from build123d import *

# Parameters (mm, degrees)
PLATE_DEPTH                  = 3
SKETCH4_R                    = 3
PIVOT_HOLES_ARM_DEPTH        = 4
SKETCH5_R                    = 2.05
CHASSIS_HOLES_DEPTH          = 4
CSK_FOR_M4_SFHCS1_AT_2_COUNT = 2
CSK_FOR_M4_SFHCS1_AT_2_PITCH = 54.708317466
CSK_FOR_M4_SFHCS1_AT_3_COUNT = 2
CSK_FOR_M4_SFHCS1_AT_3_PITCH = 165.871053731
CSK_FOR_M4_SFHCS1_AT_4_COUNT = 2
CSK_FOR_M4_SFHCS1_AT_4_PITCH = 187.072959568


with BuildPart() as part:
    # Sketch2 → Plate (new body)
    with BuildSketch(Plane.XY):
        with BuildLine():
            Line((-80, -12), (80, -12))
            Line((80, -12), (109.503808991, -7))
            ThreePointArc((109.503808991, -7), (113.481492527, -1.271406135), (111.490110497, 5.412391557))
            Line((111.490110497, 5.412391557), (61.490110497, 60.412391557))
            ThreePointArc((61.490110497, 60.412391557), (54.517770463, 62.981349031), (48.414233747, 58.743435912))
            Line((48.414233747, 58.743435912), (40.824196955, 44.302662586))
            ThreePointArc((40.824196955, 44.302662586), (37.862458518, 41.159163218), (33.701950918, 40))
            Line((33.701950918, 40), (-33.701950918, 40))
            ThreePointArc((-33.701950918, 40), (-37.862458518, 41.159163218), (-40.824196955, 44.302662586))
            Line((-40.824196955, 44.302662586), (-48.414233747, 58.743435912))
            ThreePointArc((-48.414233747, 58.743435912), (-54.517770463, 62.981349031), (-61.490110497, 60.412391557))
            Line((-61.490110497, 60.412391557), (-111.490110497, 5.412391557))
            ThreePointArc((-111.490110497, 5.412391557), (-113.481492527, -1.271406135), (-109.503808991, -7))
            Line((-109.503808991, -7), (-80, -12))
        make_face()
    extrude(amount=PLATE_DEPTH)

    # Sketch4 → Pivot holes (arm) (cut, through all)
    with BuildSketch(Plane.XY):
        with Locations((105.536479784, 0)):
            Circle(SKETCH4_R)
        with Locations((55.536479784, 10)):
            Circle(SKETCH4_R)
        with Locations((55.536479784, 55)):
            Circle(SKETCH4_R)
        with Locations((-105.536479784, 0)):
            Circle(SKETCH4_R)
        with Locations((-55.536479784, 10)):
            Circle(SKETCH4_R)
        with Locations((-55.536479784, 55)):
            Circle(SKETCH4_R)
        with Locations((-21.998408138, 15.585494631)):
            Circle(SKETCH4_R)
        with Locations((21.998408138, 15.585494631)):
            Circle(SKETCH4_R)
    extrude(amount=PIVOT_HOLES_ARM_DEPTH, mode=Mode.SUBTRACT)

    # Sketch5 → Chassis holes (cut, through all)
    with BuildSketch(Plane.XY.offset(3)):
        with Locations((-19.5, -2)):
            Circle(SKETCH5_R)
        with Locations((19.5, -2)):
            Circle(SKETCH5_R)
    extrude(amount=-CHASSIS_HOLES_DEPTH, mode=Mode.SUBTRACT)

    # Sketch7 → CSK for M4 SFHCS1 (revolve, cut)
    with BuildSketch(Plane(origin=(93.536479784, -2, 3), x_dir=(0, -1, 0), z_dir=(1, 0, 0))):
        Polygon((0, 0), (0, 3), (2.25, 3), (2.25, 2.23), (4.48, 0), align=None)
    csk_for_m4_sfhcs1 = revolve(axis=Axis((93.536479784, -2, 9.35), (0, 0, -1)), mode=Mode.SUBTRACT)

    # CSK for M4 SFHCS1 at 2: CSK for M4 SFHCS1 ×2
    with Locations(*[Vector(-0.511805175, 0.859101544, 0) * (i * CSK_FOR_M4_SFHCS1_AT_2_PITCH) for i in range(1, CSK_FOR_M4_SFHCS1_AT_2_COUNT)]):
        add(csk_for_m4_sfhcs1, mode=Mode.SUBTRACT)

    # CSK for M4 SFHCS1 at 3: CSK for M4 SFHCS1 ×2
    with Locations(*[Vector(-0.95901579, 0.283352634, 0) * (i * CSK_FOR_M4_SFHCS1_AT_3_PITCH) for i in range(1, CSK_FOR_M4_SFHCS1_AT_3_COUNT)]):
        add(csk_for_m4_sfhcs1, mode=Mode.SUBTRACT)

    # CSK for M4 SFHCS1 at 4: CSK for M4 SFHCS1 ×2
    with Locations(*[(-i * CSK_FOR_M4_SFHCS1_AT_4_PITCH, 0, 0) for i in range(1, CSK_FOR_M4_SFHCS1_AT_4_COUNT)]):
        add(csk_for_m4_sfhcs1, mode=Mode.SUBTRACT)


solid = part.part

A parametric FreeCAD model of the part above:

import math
import FreeCAD as App
import Part
import Sketcher
Q = App.Units.Quantity


def add_polygon(sketch, points):
    """Adds a closed chain of lines whose ends are joined by coincident constraints."""
    first, n = sketch.GeometryCount, len(points)
    for a, b in zip(points, points[1:] + points[:1]):
        sketch.addGeometry(Part.LineSegment(App.Vector(*a, 0), App.Vector(*b, 0)), False)
    for i in range(n):
        sketch.addConstraint(Sketcher.Constraint("Coincident", first + i, 2, first + (i + 1) % n, 1))

doc = App.newDocument("Part")
body = doc.addObject("PartDesign::Body", "Body")

sketch1 = doc.addObject("Sketcher::SketchObject", "Sketch")
body.addObject(sketch1)
sketch1.AttachmentSupport = (doc.XY_Plane, [""])
sketch1.MapMode = "FlatFace"
sketch1.addGeometry([
    Part.LineSegment(App.Vector(-80, -12, 0), App.Vector(80, -12, 0)),
    Part.LineSegment(App.Vector(80, -12, 0), App.Vector(110, -7, 0)),
    Part.ArcOfCircle(Part.Circle(App.Vector(106, 0, 0), App.Vector(0, 0, 1), 8), math.radians(-60), math.radians(42)),
    Part.LineSegment(App.Vector(111, 5, 0), App.Vector(61, 60, 0)),
    Part.ArcOfCircle(Part.Circle(App.Vector(56, 55, 0), App.Vector(0, 0, 1), 8), math.radians(42), math.radians(152)),
    Part.LineSegment(App.Vector(48, 59, 0), App.Vector(41, 44, 0)),
    Part.ArcOfCircle(Part.Circle(App.Vector(34, 48, 0), App.Vector(0, 0, 1), 8), math.radians(-90), math.radians(-28)),
    Part.LineSegment(App.Vector(34, 40, 0), App.Vector(-34, 40, 0)),
    Part.ArcOfCircle(Part.Circle(App.Vector(-34, 48, 0), App.Vector(0, 0, 1), 8), math.radians(-152), math.radians(-90)),
    Part.LineSegment(App.Vector(-41, 44, 0), App.Vector(-48, 59, 0)),
    Part.ArcOfCircle(Part.Circle(App.Vector(-56, 55, 0), App.Vector(0, 0, 1), 8), math.radians(28), math.radians(138)),
    Part.LineSegment(App.Vector(-61, 60, 0), App.Vector(-111, 5, 0)),
    Part.ArcOfCircle(Part.Circle(App.Vector(-106, 0, 0), App.Vector(0, 0, 1), 8), math.radians(138), math.radians(240)),
    Part.LineSegment(App.Vector(-110, -7, 0), App.Vector(-80, -12, 0)),
], False)
sketch1.addConstraint([
    Sketcher.Constraint("Coincident", 0, 2, 1, 1),
    Sketcher.Constraint("Coincident", 1, 2, 2, 1),
    Sketcher.Constraint("Tangent", 2, 2, 3, 1),
    Sketcher.Constraint("Tangent", 3, 2, 4, 1),
    Sketcher.Constraint("Tangent", 4, 2, 5, 1),
    Sketcher.Constraint("Tangent", 5, 2, 6, 2),
    Sketcher.Constraint("Tangent", 6, 1, 7, 1),
    Sketcher.Constraint("Tangent", 7, 2, 8, 2),
    Sketcher.Constraint("Tangent", 8, 1, 9, 1),
    Sketcher.Constraint("Tangent", 9, 2, 10, 1),
    Sketcher.Constraint("Tangent", 10, 2, 11, 1),
    Sketcher.Constraint("Tangent", 11, 2, 12, 1),
    Sketcher.Constraint("Coincident", 12, 2, 13, 1),
    Sketcher.Constraint("Coincident", 13, 2, 0, 1),
    Sketcher.Constraint("Horizontal", 0),
    Sketcher.Constraint("Horizontal", 7),
    Sketcher.Constraint("Equal", 2, 4),
    Sketcher.Constraint("Equal", 4, 6),
    Sketcher.Constraint("Equal", 6, 8),
    Sketcher.Constraint("Equal", 8, 10),
    Sketcher.Constraint("Equal", 10, 12),
    Sketcher.Constraint("Symmetric", 2, 3, 12, 3, -1, 1),
    Sketcher.Constraint("Symmetric", 4, 3, 10, 3, -2),
    Sketcher.Constraint("Symmetric", 1, 2, 12, 2, -2),
    Sketcher.Constraint("Horizontal", 5, 2, 8, 1),
    Sketcher.Constraint("Equal", 1, 13),
    Sketcher.Constraint("DistanceX", 0, 1, 0, 2, Q("160 mm")),
    Sketcher.Constraint("DistanceY", -1, 1, 4, 3, Q("55 mm")),
    Sketcher.Constraint("DistanceY", 0, 2, -1, 1, Q("12 mm")),
    Sketcher.Constraint("DistanceY", 1, 2, -1, 1, Q("7 mm")),
    Sketcher.Constraint("DistanceY", -1, 1, 6, 1, Q("40 mm")),
    Sketcher.Constraint("DistanceX", 4, 3, 2, 3, Q("50 mm")),
    Sketcher.Constraint("Radius", 2, Q("8.046098 mm")),
    Sketcher.Constraint("DistanceX", 7, 2, 7, 1, Q("67.403902 mm")),
    Sketcher.Constraint("Distance", 5, Q("16.313939 mm")),
])
pad1 = doc.addObject("PartDesign::Pad", "Pad")
body.addObject(pad1)
pad1.Profile = sketch1
pad1.Length = 3

sketch2 = doc.addObject("Sketcher::SketchObject", "Sketch001")
body.addObject(sketch2)
sketch2.AttachmentSupport = (doc.XY_Plane, [""])
sketch2.MapMode = "FlatFace"
sketch2.addGeometry([
    Part.Circle(App.Vector(105.5, 0, 0), App.Vector(0, 0, 1), 3),
    Part.Circle(App.Vector(55.5, 10, 0), App.Vector(0, 0, 1), 3),
    Part.Circle(App.Vector(55.5, 55, 0), App.Vector(0, 0, 1), 3),
    Part.Circle(App.Vector(-105.5, 0, 0), App.Vector(0, 0, 1), 3),
    Part.Circle(App.Vector(-55.5, 10, 0), App.Vector(0, 0, 1), 3),
    Part.Circle(App.Vector(-55.5, 55, 0), App.Vector(0, 0, 1), 3),
    Part.Circle(App.Vector(-22, 15.6, 0), App.Vector(0, 0, 1), 3),
    Part.Circle(App.Vector(22, 15.6, 0), App.Vector(0, 0, 1), 3),
], False)
sketch2.addConstraint([
    Sketcher.Constraint("Equal", 0, 1),
    Sketcher.Constraint("Equal", 1, 2),
    Sketcher.Constraint("Equal", 2, 3),
    Sketcher.Constraint("Equal", 3, 4),
    Sketcher.Constraint("Equal", 4, 5),
    Sketcher.Constraint("Equal", 5, 6),
    Sketcher.Constraint("Equal", 6, 7),
    Sketcher.Constraint("Symmetric", 0, 3, 3, 3, -1, 1),
    Sketcher.Constraint("Symmetric", 1, 3, 4, 3, -2),
    Sketcher.Constraint("Symmetric", 2, 3, 5, 3, -2),
    Sketcher.Constraint("Symmetric", 6, 3, 7, 3, -2),
    Sketcher.Constraint("PointOnObject", 0, 3, -1),
    Sketcher.Constraint("Vertical", 1, 3, 2, 3),
    Sketcher.Constraint("Diameter", 0, Q("6 mm")),
    Sketcher.Constraint("DistanceY", -1, 1, 1, 3, Q("10 mm")),
    Sketcher.Constraint("DistanceY", -1, 1, 2, 3, Q("55 mm")),
    Sketcher.Constraint("DistanceX", 1, 3, 0, 3, Q("50 mm")),
    Sketcher.Constraint("DistanceX", -1, 1, 0, 3, Q("105.53648 mm")),
    Sketcher.Constraint("DistanceX", 6, 3, -1, 1, Q("21.998408 mm")),
    Sketcher.Constraint("DistanceY", -1, 1, 6, 3, Q("15.585495 mm")),
])
pocket1 = doc.addObject("PartDesign::Pocket", "Pocket")
body.addObject(pocket1)
pocket1.Profile = sketch2
pocket1.Type = "ThroughAll"
pocket1.Reversed = True

sketch3 = doc.addObject("Sketcher::SketchObject", "Sketch002")
body.addObject(sketch3)
sketch3.AttachmentSupport = (doc.XY_Plane, [""])
sketch3.MapMode = "FlatFace"
sketch3.AttachmentOffset = App.Placement(App.Vector(0, 0, 3), App.Rotation())
sketch3.addGeometry([
    Part.Circle(App.Vector(-19.5, -2, 0), App.Vector(0, 0, 1), 2),
    Part.Circle(App.Vector(19.5, -2, 0), App.Vector(0, 0, 1), 2),
], False)
sketch3.addConstraint([
    Sketcher.Constraint("Equal", 0, 1),
    Sketcher.Constraint("Symmetric", 0, 3, 1, 3, -2),
    Sketcher.Constraint("Diameter", 0, Q("4.1 mm")),
    Sketcher.Constraint("DistanceY", 0, 3, -1, 1, Q("2 mm")),
    Sketcher.Constraint("DistanceX", 0, 3, 1, 3, Q("39 mm")),
])
pocket2 = doc.addObject("PartDesign::Pocket", "Pocket001")
body.addObject(pocket2)
pocket2.Profile = sketch3
pocket2.Type = "ThroughAll"

sketch4 = doc.addObject("Sketcher::SketchObject", "Sketch003")
body.addObject(sketch4)
sketch4.AttachmentSupport = (doc.YZ_Plane, [""])
sketch4.MapMode = "FlatFace"
sketch4.AttachmentOffset = App.Placement(App.Vector(0, 0, 93.53648), App.Rotation())
add_polygon(sketch4, [(-2, 0), (-2, 3), (-6.5, 3), (-4.2, 0.8), (-4.2, 0)])
sketch4.addGeometry(Part.LineSegment(App.Vector(-2, 3, 0), App.Vector(-2, 0, 0)), True)
sketch4.addConstraint([
    Sketcher.Constraint("Vertical", 0),
    Sketcher.Constraint("Horizontal", 1),
    Sketcher.Constraint("Vertical", 3),
    Sketcher.Constraint("Horizontal", 4),
    Sketcher.Constraint("Vertical", 5),
    Sketcher.Constraint("Coincident", 5, 1, 0, 2),
    Sketcher.Constraint("PointOnObject", 3, 2, -1),
    Sketcher.Constraint("PointOnObject", 5, 2, -1),
    Sketcher.Constraint("DistanceY", 0, 1, 0, 2, Q("3 mm")),
    Sketcher.Constraint("Angle", 2, Q("-45 deg")),
    Sketcher.Constraint("DistanceX", 0, 2, -1, 1, Q("2 mm")),
    Sketcher.Constraint("DistanceX", 1, 2, 1, 1, Q("4.48 mm")),
    Sketcher.Constraint("DistanceX", 4, 1, 4, 2, Q("2.25 mm")),
])
groove = doc.addObject("PartDesign::Groove", "Groove")
body.addObject(groove)
groove.Profile = sketch4
groove.ReferenceAxis = (sketch4, ["Axis0"])
groove.Angle = 360
doc.recompute()

datumline = doc.addObject("PartDesign::Line", "DatumLine")
body.addObject(datumline)
datumline.Placement = App.Placement(App.Vector(0, 0, 0), App.Rotation(App.Vector(0, 0, 1), App.Vector(-0.511805175, 0.859101544, 0)))
linearpattern = doc.addObject("PartDesign::LinearPattern", "LinearPattern")
body.addObject(linearpattern)
linearpattern.Originals = [groove]
linearpattern.Direction = (datumline, [""])
linearpattern.Mode = "offset"
linearpattern.Offset = 54.708317
linearpattern.Occurrences = 2
body.Tip = linearpattern
doc.recompute()

datumline2 = doc.addObject("PartDesign::Line", "DatumLine001")
body.addObject(datumline2)
datumline2.Placement = App.Placement(App.Vector(0, 0, 0), App.Rotation(App.Vector(0, 0, 1), App.Vector(-0.95901579, 0.283352634, 0)))
linearpattern2 = doc.addObject("PartDesign::LinearPattern", "LinearPattern001")
body.addObject(linearpattern2)
linearpattern2.Originals = [groove]
linearpattern2.Direction = (datumline2, [""])
linearpattern2.Mode = "offset"
linearpattern2.Offset = 165.871054
linearpattern2.Occurrences = 2
body.Tip = linearpattern2
doc.recompute()

linearpattern3 = doc.addObject("PartDesign::LinearPattern", "LinearPattern002")
body.addObject(linearpattern3)
linearpattern3.Originals = [groove]
linearpattern3.Direction = (doc.X_Axis, [""])
linearpattern3.Mode = "offset"
linearpattern3.Offset = 187.07296
linearpattern3.Occurrences = 2
linearpattern3.Reversed = True
body.Tip = linearpattern3

doc.recompute()
